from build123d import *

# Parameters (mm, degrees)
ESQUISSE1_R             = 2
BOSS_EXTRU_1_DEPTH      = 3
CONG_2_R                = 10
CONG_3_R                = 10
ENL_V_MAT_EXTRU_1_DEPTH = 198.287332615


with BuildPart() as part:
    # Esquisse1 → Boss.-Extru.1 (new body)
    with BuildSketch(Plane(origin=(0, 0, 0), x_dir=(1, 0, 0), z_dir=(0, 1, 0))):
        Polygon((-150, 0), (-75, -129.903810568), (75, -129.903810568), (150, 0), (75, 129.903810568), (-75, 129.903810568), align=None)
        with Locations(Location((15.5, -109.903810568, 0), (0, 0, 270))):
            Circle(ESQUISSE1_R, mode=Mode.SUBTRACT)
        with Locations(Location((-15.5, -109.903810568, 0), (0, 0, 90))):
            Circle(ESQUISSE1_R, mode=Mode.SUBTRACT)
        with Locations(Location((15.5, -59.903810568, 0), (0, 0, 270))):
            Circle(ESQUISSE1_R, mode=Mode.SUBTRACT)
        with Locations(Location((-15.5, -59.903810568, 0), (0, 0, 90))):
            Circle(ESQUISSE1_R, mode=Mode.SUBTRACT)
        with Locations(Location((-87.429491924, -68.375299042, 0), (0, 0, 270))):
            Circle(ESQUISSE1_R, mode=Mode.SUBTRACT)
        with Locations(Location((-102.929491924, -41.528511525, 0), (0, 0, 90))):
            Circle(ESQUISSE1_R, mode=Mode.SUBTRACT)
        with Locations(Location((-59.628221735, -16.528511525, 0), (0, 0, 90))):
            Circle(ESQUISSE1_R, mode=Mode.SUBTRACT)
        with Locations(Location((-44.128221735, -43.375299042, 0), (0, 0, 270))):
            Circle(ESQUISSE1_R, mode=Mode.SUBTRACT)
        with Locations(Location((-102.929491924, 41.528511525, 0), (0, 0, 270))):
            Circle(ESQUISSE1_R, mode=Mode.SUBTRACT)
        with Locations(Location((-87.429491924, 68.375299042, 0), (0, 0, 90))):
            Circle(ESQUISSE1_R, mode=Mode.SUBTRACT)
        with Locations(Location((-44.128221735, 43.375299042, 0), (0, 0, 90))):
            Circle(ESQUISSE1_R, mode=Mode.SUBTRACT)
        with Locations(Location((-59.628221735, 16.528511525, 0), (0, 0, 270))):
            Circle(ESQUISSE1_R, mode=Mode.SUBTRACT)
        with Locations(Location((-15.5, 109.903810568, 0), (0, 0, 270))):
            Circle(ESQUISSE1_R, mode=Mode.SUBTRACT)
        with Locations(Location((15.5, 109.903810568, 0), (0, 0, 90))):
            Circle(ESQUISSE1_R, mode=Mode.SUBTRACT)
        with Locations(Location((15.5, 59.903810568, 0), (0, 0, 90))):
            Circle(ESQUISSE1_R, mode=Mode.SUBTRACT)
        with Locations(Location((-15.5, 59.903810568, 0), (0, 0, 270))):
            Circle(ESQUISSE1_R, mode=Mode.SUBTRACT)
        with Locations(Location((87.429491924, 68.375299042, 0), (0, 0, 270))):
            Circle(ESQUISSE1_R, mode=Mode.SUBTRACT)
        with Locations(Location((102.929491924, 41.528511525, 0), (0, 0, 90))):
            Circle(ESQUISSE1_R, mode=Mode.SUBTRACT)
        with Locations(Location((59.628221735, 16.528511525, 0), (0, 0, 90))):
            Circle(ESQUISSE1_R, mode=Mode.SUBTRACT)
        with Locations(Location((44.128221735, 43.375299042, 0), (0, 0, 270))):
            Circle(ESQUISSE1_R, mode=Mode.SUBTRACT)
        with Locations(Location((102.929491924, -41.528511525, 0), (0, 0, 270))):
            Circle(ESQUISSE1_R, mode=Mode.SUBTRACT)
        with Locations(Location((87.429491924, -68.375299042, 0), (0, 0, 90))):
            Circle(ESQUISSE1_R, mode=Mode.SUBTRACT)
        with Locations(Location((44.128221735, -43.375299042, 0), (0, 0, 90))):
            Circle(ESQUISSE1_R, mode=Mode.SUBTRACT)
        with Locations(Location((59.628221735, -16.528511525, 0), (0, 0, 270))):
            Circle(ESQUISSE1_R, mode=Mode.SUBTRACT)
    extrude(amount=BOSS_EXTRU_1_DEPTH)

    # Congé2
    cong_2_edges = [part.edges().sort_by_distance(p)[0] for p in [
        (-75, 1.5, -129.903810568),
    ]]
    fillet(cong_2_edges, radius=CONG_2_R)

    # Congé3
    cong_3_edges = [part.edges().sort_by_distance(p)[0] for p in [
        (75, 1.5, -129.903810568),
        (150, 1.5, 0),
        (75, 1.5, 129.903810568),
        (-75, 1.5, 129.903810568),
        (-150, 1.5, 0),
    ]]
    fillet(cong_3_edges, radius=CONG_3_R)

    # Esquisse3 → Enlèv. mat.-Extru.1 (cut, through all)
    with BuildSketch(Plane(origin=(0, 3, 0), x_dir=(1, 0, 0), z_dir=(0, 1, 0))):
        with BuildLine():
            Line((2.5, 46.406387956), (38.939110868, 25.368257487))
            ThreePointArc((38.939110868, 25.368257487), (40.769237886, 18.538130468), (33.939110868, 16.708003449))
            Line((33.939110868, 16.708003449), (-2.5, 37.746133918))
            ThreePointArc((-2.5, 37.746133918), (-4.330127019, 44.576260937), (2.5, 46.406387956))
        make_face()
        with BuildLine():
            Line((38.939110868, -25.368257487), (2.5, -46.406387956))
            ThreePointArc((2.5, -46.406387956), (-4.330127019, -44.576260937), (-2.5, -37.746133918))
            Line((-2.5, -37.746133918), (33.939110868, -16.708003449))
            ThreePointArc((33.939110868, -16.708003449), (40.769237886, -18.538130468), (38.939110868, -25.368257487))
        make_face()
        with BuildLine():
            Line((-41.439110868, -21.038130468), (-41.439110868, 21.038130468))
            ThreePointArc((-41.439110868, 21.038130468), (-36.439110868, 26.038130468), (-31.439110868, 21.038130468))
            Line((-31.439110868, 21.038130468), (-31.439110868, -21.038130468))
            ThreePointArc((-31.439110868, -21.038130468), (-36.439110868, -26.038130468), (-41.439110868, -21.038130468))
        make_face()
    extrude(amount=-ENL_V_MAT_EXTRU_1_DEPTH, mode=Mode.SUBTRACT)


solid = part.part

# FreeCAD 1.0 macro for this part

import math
import FreeCAD as App
import Part
import Sketcher
from FreeCAD import Vector
Q = App.Units.Quantity


def edges_at(feature, points):
    """Names of the edges that pass closest to the given points."""
    edges = feature.Shape.Edges
    near = lambda p: min(range(len(edges)), key=lambda i: edges[i].distToShape(Part.Vertex(*p))[0])
    return sorted({f"Edge{near(p) + 1}" for p in points})


def add_polygon(sketch, points):
    """Adds a closed chain of lines whose ends are joined by coincident constraints."""
    first, n = sketch.GeometryCount, len(points)
    for a, b in zip(points, points[1:] + points[:1]):
        sketch.addGeometry(Part.LineSegment(App.Vector(*a, 0), App.Vector(*b, 0)), False)
    for i in range(n):
        sketch.addConstraint(Sketcher.Constraint("Coincident", first + i, 2, first + (i + 1) % n, 1))

doc = App.newDocument("Part")
body = doc.addObject("PartDesign::Body", "Body")

sketch1 = body.newObject("Sketcher::SketchObject", "Sketch")
sketch1.AttachmentSupport = (doc.getObject("XZ_Plane"), [""])
sketch1.MapMode = "FlatFace"
add_polygon(sketch1, [(-150, 0), (-75, 129.9), (75, 129.9), (150, 0), (75, -129.9), (-75, -129.9)])
sketch1.addGeometry(Part.Circle(Vector(-87.4, 68.4, 0), Vector(0, 0, 1), 2), False)
sketch1.addGeometry(Part.Circle(Vector(-15.5, 109.9, 0), Vector(0, 0, 1), 2), False)
sketch1.addGeometry(Part.Circle(Vector(-15.5, 59.9, 0), Vector(0, 0, 1), 2), False)
sketch1.addGeometry(Part.Circle(Vector(-102.9, 41.5, 0), Vector(0, 0, 1), 2), False)
sketch1.addGeometry(Part.Circle(Vector(-59.6, 16.5, 0), Vector(0, 0, 1), 2), False)
sketch1.addGeometry(Part.Circle(Vector(-44.1, 43.4, 0), Vector(0, 0, 1), 2), False)
sketch1.addGeometry(Part.Circle(Vector(15.5, 109.9, 0), Vector(0, 0, 1), 2), False)
sketch1.addGeometry(Part.Circle(Vector(15.5, 59.9, 0), Vector(0, 0, 1), 2), False)
sketch1.addGeometry(Part.Circle(Vector(87.4, 68.4, 0), Vector(0, 0, 1), 2), False)
sketch1.addGeometry(Part.Circle(Vector(44.1, 43.4, 0), Vector(0, 0, 1), 2), False)
sketch1.addGeometry(Part.Circle(Vector(102.9, 41.5, 0), Vector(0, 0, 1), 2), False)
sketch1.addGeometry(Part.Circle(Vector(59.6, 16.5, 0), Vector(0, 0, 1), 2), False)
sketch1.addGeometry(Part.Circle(Vector(-59.6, -16.5, 0), Vector(0, 0, 1), 2), False)
sketch1.addGeometry(Part.Circle(Vector(-102.9, -41.5, 0), Vector(0, 0, 1), 2), False)
sketch1.addGeometry(Part.Circle(Vector(-44.1, -43.4, 0), Vector(0, 0, 1), 2), False)
sketch1.addGeometry(Part.Circle(Vector(-87.4, -68.4, 0), Vector(0, 0, 1), 2), False)
sketch1.addGeometry(Part.Circle(Vector(-15.5, -59.9, 0), Vector(0, 0, 1), 2), False)
sketch1.addGeometry(Part.Circle(Vector(-15.5, -109.9, 0), Vector(0, 0, 1), 2), False)
sketch1.addGeometry(Part.Circle(Vector(44.1, -43.4, 0), Vector(0, 0, 1), 2), False)
sketch1.addGeometry(Part.Circle(Vector(59.6, -16.5, 0), Vector(0, 0, 1), 2), False)
sketch1.addGeometry(Part.Circle(Vector(102.9, -41.5, 0), Vector(0, 0, 1), 2), False)
sketch1.addGeometry(Part.Circle(Vector(15.5, -59.9, 0), Vector(0, 0, 1), 2), False)
sketch1.addGeometry(Part.Circle(Vector(15.5, -109.9, 0), Vector(0, 0, 1), 2), False)
sketch1.addGeometry(Part.Circle(Vector(87.4, -68.4, 0), Vector(0, 0, 1), 2), False)
sketch1.addConstraint([
    Sketcher.Constraint("Horizontal", 1),
    Sketcher.Constraint("Horizontal", 4),
    Sketcher.Constraint("Equal", 6, 7),
    Sketcher.Constraint("Equal", 7, 8),
    Sketcher.Constraint("Equal", 8, 9),
    Sketcher.Constraint("Equal", 9, 10),
    Sketcher.Constraint("Equal", 10, 11),
    Sketcher.Constraint("Equal", 11, 12),
    Sketcher.Constraint("Equal", 12, 13),
    Sketcher.Constraint("Equal", 13, 14),
    Sketcher.Constraint("Equal", 14, 15),
    Sketcher.Constraint("Equal", 15, 16),
    Sketcher.Constraint("Equal", 16, 17),
    Sketcher.Constraint("Equal", 17, 18),
    Sketcher.Constraint("Equal", 18, 19),
    Sketcher.Constraint("Equal", 19, 20),
    Sketcher.Constraint("Equal", 20, 21),
    Sketcher.Constraint("Equal", 21, 22),
    Sketcher.Constraint("Equal", 22, 23),
    Sketcher.Constraint("Equal", 23, 24),
    Sketcher.Constraint("Equal", 24, 25),
    Sketcher.Constraint("Equal", 25, 26),
    Sketcher.Constraint("Equal", 26, 27),
    Sketcher.Constraint("Equal", 27, 28),
    Sketcher.Constraint("Equal", 28, 29),
    Sketcher.Constraint("Symmetric", 17, 3, 18, 3, -1, 1),
    Sketcher.Constraint("Symmetric", 16, 3, 19, 3, -1, 1),
    Sketcher.Constraint("Symmetric", 15, 3, 20, 3, -1, 1),
    Sketcher.Constraint("Symmetric", 14, 3, 21, 3, -1, 1),
    Sketcher.Constraint("Symmetric", 13, 3, 22, 3, -1, 1),
    Sketcher.Constraint("Symmetric", 12, 3, 23, 3, -1, 1),
    Sketcher.Constraint("Symmetric", 11, 3, 24, 3, -1, 1),
    Sketcher.Constraint("Symmetric", 10, 3, 25, 3, -1, 1),
    Sketcher.Constraint("Symmetric", 9, 3, 26, 3, -1, 1),
    Sketcher.Constraint("Symmetric", 8, 3, 27, 3, -1, 1),
    Sketcher.Constraint("Symmetric", 7, 3, 28, 3, -1, 1),
    Sketcher.Constraint("Symmetric", 6, 3, 29, 3, -1, 1),
    Sketcher.Constraint("Symmetric", 0, 2, 3, 2, -1, 1),
    Sketcher.Constraint("Symmetric", 2, 2, 5, 2, -1, 1),
    Sketcher.Constraint("Symmetric", 7, 3, 12, 3, -2),
    Sketcher.Constraint("Symmetric", 8, 3, 13, 3, -2),
    Sketcher.Constraint("Symmetric", 6, 3, 14, 3, -2),
    Sketcher.Constraint("Symmetric", 11, 3, 15, 3, -2),
    Sketcher.Constraint("Symmetric", 9, 3, 16, 3, -2),
    Sketcher.Constraint("Symmetric", 10, 3, 17, 3, -2),
    Sketcher.Constraint("PointOnObject", 2, 2, -1),
    Sketcher.Constraint("Parallel", 2, 5),
    Sketcher.Constraint("Vertical", 7, 3, 8, 3),
    Sketcher.Constraint("Vertical", 1, 2, 3, 2),
    Sketcher.Constraint("Diameter", 6, 4.0),
    Sketcher.Constraint("DistanceX", 1, 1, 1, 2, 150.0),
    Sketcher.Constraint("Angle", 0, Q("60 deg")),
    Sketcher.Constraint("Distance", 0, 150.0),
    Sketcher.Constraint("DistanceY", 8, 3, 7, 3, 50.0),
    Sketcher.Constraint("DistanceY", 10, 3, 9, 3, 25.0),
    Sketcher.Constraint("DistanceY", 11, 3, 6, 3, 25.0),
    Sketcher.Constraint("DistanceX", 7, 3, 12, 3, 31.0),
    Sketcher.Constraint("DistanceY", 7, 3, 0, 2, 20.0),
    Sketcher.Constraint("DistanceX", 9, 3, 6, 3, 15.5),
    Sketcher.Constraint("DistanceX", 10, 3, 11, 3, 15.5),
    Sketcher.Constraint("DistanceY", -1, 1, 6, 3, 68.375299),
    Sketcher.Constraint("DistanceY", 9, 3, 8, 3, 18.375299),
    Sketcher.Constraint("DistanceX", 6, 3, -1, 1, 87.429492),
    Sketcher.Constraint("DistanceX", 10, 3, -1, 1, 59.628222),
])
pad1 = body.newObject("PartDesign::Pad", "Pad")
pad1.Profile = sketch1
pad1.Length = 3
pad1.Reversed = True
doc.recompute()

fillet = body.newObject("PartDesign::Fillet", "Fillet")
fillet.Base = (pad1, edges_at(pad1, [(-75, 1.5, -129.904)]))
fillet.Radius = 10
doc.recompute()

fillet2 = body.newObject("PartDesign::Fillet", "Fillet001")
fillet2.Base = (fillet, edges_at(fillet, [
    (75, 1.5, -129.904),
    (150, 1.5, 0),
    (75, 1.5, 129.904),
    (-75, 1.5, 129.904),
    (-150, 1.5, 0),
]))
fillet2.Radius = 10

sketch2 = body.newObject("Sketcher::SketchObject", "Sketch001")
sketch2.AttachmentSupport = (doc.getObject("XZ_Plane"), [""])
sketch2.MapMode = "FlatFace"
sketch2.AttachmentOffset = App.Placement(Vector(0, 0, -3), App.Rotation())
sketch2.addGeometry([
    Part.LineSegment(Vector(39, -25, 0), Vector(2, -46, 0)),
    Part.ArcOfCircle(Part.Circle(Vector(0, -42, 0), Vector(0, 0, 1), 5), math.radians(120), math.radians(300)),
    Part.LineSegment(Vector(-2, -38, 0), Vector(34, -17, 0)),
    Part.ArcOfCircle(Part.Circle(Vector(36, -21, 0), Vector(0, 0, 1), 5), math.radians(-60), math.radians(120)),
    Part.LineSegment(Vector(2, 46, 0), Vector(39, 25, 0)),
    Part.ArcOfCircle(Part.Circle(Vector(36, 21, 0), Vector(0, 0, 1), 5), math.radians(-120), math.radians(60)),
    Part.LineSegment(Vector(34, 17, 0), Vector(-2, 38, 0)),
    Part.ArcOfCircle(Part.Circle(Vector(0, 42, 0), Vector(0, 0, 1), 5), math.radians(60), math.radians(240)),
    Part.LineSegment(Vector(-41, -21, 0), Vector(-41, 21, 0)),
    Part.ArcOfCircle(Part.Circle(Vector(-36, 21, 0), Vector(0, 0, 1), 5), math.radians(0), math.radians(180)),
    Part.LineSegment(Vector(-31, 21, 0), Vector(-31, -21, 0)),
    Part.ArcOfCircle(Part.Circle(Vector(-36, -21, 0), Vector(0, 0, 1), 5), math.radians(180), math.radians(360)),
], False)
sketch2.addConstraint([
    Sketcher.Constraint("Tangent", 0, 2, 1, 2),
    Sketcher.Constraint("Tangent", 1, 1, 2, 1),
    Sketcher.Constraint("Tangent", 2, 2, 3, 2),
    Sketcher.Constraint("Tangent", 3, 1, 0, 1),
    Sketcher.Constraint("Tangent", 4, 2, 5, 2),
    Sketcher.Constraint("Tangent", 5, 1, 6, 1),
    Sketcher.Constraint("Tangent", 6, 2, 7, 2),
    Sketcher.Constraint("Tangent", 7, 1, 4, 1),
    Sketcher.Constraint("Tangent", 8, 2, 9, 2),
    Sketcher.Constraint("Tangent", 9, 1, 10, 1),
    Sketcher.Constraint("Tangent", 10, 2, 11, 2),
    Sketcher.Constraint("Tangent", 11, 1, 8, 1),
    Sketcher.Constraint("Vertical", 8),
    Sketcher.Constraint("Vertical", 10),
    Sketcher.Constraint("Equal", 1, 3),
    Sketcher.Constraint("Equal", 3, 5),
    Sketcher.Constraint("Equal", 5, 7),
    Sketcher.Constraint("Equal", 7, 9),
    Sketcher.Constraint("Symmetric", 1, 3, 7, 3, -1, 1),
    Sketcher.Constraint("Symmetric", 3, 3, 9, 3, -1, 1),
    Sketcher.Constraint("Symmetric", 5, 3, 11, 3, -1, 1),
    Sketcher.Constraint("Symmetric", 3, 1, 4, 2, -1),
    Sketcher.Constraint("Radius", 1, 5.0),
    Sketcher.Constraint("Angle", 0, Q("-150 deg")),
    Sketcher.Constraint("DistanceY", 8, 1, 8, 2, 42.076261),
    Sketcher.Constraint("Distance", 0, 42.076261),
])
pocket1 = body.newObject("PartDesign::Pocket", "Pocket")
pocket1.Profile = sketch2
pocket1.Type = "ThroughAll"
pocket1.Reversed = True

doc.recompute()
